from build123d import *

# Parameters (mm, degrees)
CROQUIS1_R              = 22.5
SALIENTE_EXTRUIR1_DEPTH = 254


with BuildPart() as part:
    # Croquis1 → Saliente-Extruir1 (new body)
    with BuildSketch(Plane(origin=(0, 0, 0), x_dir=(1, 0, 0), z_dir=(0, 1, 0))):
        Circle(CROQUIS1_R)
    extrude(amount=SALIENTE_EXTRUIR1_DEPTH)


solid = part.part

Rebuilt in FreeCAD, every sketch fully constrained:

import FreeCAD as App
import Part
import Sketcher
from FreeCAD import Vector
Q = App.Units.Quantity

doc = App.newDocument("Part")
body = doc.addObject("PartDesign::Body", "Body")

sketch1 = body.newObject("Sketcher::SketchObject", "Sketch")
sketch1.AttachmentSupport = (doc.getObject("XZ_Plane"), [""])
sketch1.MapMode = "FlatFace"
sketch1.addGeometry(Part.Circle(Vector(0, 0, 0), Vector(0, 0, 1), 22), False)
sketch1.addConstraint([
    Sketcher.Constraint("Coincident", 0, 3, -1, 1),
    Sketcher.Constraint("Diameter", 0, Q("45 mm")),
])
pad1 = body.newObject("PartDesign::Pad", "Pad")
pad1.Profile = sketch1
pad1.Length = 254
pad1.Reversed = True

doc.recompute()
